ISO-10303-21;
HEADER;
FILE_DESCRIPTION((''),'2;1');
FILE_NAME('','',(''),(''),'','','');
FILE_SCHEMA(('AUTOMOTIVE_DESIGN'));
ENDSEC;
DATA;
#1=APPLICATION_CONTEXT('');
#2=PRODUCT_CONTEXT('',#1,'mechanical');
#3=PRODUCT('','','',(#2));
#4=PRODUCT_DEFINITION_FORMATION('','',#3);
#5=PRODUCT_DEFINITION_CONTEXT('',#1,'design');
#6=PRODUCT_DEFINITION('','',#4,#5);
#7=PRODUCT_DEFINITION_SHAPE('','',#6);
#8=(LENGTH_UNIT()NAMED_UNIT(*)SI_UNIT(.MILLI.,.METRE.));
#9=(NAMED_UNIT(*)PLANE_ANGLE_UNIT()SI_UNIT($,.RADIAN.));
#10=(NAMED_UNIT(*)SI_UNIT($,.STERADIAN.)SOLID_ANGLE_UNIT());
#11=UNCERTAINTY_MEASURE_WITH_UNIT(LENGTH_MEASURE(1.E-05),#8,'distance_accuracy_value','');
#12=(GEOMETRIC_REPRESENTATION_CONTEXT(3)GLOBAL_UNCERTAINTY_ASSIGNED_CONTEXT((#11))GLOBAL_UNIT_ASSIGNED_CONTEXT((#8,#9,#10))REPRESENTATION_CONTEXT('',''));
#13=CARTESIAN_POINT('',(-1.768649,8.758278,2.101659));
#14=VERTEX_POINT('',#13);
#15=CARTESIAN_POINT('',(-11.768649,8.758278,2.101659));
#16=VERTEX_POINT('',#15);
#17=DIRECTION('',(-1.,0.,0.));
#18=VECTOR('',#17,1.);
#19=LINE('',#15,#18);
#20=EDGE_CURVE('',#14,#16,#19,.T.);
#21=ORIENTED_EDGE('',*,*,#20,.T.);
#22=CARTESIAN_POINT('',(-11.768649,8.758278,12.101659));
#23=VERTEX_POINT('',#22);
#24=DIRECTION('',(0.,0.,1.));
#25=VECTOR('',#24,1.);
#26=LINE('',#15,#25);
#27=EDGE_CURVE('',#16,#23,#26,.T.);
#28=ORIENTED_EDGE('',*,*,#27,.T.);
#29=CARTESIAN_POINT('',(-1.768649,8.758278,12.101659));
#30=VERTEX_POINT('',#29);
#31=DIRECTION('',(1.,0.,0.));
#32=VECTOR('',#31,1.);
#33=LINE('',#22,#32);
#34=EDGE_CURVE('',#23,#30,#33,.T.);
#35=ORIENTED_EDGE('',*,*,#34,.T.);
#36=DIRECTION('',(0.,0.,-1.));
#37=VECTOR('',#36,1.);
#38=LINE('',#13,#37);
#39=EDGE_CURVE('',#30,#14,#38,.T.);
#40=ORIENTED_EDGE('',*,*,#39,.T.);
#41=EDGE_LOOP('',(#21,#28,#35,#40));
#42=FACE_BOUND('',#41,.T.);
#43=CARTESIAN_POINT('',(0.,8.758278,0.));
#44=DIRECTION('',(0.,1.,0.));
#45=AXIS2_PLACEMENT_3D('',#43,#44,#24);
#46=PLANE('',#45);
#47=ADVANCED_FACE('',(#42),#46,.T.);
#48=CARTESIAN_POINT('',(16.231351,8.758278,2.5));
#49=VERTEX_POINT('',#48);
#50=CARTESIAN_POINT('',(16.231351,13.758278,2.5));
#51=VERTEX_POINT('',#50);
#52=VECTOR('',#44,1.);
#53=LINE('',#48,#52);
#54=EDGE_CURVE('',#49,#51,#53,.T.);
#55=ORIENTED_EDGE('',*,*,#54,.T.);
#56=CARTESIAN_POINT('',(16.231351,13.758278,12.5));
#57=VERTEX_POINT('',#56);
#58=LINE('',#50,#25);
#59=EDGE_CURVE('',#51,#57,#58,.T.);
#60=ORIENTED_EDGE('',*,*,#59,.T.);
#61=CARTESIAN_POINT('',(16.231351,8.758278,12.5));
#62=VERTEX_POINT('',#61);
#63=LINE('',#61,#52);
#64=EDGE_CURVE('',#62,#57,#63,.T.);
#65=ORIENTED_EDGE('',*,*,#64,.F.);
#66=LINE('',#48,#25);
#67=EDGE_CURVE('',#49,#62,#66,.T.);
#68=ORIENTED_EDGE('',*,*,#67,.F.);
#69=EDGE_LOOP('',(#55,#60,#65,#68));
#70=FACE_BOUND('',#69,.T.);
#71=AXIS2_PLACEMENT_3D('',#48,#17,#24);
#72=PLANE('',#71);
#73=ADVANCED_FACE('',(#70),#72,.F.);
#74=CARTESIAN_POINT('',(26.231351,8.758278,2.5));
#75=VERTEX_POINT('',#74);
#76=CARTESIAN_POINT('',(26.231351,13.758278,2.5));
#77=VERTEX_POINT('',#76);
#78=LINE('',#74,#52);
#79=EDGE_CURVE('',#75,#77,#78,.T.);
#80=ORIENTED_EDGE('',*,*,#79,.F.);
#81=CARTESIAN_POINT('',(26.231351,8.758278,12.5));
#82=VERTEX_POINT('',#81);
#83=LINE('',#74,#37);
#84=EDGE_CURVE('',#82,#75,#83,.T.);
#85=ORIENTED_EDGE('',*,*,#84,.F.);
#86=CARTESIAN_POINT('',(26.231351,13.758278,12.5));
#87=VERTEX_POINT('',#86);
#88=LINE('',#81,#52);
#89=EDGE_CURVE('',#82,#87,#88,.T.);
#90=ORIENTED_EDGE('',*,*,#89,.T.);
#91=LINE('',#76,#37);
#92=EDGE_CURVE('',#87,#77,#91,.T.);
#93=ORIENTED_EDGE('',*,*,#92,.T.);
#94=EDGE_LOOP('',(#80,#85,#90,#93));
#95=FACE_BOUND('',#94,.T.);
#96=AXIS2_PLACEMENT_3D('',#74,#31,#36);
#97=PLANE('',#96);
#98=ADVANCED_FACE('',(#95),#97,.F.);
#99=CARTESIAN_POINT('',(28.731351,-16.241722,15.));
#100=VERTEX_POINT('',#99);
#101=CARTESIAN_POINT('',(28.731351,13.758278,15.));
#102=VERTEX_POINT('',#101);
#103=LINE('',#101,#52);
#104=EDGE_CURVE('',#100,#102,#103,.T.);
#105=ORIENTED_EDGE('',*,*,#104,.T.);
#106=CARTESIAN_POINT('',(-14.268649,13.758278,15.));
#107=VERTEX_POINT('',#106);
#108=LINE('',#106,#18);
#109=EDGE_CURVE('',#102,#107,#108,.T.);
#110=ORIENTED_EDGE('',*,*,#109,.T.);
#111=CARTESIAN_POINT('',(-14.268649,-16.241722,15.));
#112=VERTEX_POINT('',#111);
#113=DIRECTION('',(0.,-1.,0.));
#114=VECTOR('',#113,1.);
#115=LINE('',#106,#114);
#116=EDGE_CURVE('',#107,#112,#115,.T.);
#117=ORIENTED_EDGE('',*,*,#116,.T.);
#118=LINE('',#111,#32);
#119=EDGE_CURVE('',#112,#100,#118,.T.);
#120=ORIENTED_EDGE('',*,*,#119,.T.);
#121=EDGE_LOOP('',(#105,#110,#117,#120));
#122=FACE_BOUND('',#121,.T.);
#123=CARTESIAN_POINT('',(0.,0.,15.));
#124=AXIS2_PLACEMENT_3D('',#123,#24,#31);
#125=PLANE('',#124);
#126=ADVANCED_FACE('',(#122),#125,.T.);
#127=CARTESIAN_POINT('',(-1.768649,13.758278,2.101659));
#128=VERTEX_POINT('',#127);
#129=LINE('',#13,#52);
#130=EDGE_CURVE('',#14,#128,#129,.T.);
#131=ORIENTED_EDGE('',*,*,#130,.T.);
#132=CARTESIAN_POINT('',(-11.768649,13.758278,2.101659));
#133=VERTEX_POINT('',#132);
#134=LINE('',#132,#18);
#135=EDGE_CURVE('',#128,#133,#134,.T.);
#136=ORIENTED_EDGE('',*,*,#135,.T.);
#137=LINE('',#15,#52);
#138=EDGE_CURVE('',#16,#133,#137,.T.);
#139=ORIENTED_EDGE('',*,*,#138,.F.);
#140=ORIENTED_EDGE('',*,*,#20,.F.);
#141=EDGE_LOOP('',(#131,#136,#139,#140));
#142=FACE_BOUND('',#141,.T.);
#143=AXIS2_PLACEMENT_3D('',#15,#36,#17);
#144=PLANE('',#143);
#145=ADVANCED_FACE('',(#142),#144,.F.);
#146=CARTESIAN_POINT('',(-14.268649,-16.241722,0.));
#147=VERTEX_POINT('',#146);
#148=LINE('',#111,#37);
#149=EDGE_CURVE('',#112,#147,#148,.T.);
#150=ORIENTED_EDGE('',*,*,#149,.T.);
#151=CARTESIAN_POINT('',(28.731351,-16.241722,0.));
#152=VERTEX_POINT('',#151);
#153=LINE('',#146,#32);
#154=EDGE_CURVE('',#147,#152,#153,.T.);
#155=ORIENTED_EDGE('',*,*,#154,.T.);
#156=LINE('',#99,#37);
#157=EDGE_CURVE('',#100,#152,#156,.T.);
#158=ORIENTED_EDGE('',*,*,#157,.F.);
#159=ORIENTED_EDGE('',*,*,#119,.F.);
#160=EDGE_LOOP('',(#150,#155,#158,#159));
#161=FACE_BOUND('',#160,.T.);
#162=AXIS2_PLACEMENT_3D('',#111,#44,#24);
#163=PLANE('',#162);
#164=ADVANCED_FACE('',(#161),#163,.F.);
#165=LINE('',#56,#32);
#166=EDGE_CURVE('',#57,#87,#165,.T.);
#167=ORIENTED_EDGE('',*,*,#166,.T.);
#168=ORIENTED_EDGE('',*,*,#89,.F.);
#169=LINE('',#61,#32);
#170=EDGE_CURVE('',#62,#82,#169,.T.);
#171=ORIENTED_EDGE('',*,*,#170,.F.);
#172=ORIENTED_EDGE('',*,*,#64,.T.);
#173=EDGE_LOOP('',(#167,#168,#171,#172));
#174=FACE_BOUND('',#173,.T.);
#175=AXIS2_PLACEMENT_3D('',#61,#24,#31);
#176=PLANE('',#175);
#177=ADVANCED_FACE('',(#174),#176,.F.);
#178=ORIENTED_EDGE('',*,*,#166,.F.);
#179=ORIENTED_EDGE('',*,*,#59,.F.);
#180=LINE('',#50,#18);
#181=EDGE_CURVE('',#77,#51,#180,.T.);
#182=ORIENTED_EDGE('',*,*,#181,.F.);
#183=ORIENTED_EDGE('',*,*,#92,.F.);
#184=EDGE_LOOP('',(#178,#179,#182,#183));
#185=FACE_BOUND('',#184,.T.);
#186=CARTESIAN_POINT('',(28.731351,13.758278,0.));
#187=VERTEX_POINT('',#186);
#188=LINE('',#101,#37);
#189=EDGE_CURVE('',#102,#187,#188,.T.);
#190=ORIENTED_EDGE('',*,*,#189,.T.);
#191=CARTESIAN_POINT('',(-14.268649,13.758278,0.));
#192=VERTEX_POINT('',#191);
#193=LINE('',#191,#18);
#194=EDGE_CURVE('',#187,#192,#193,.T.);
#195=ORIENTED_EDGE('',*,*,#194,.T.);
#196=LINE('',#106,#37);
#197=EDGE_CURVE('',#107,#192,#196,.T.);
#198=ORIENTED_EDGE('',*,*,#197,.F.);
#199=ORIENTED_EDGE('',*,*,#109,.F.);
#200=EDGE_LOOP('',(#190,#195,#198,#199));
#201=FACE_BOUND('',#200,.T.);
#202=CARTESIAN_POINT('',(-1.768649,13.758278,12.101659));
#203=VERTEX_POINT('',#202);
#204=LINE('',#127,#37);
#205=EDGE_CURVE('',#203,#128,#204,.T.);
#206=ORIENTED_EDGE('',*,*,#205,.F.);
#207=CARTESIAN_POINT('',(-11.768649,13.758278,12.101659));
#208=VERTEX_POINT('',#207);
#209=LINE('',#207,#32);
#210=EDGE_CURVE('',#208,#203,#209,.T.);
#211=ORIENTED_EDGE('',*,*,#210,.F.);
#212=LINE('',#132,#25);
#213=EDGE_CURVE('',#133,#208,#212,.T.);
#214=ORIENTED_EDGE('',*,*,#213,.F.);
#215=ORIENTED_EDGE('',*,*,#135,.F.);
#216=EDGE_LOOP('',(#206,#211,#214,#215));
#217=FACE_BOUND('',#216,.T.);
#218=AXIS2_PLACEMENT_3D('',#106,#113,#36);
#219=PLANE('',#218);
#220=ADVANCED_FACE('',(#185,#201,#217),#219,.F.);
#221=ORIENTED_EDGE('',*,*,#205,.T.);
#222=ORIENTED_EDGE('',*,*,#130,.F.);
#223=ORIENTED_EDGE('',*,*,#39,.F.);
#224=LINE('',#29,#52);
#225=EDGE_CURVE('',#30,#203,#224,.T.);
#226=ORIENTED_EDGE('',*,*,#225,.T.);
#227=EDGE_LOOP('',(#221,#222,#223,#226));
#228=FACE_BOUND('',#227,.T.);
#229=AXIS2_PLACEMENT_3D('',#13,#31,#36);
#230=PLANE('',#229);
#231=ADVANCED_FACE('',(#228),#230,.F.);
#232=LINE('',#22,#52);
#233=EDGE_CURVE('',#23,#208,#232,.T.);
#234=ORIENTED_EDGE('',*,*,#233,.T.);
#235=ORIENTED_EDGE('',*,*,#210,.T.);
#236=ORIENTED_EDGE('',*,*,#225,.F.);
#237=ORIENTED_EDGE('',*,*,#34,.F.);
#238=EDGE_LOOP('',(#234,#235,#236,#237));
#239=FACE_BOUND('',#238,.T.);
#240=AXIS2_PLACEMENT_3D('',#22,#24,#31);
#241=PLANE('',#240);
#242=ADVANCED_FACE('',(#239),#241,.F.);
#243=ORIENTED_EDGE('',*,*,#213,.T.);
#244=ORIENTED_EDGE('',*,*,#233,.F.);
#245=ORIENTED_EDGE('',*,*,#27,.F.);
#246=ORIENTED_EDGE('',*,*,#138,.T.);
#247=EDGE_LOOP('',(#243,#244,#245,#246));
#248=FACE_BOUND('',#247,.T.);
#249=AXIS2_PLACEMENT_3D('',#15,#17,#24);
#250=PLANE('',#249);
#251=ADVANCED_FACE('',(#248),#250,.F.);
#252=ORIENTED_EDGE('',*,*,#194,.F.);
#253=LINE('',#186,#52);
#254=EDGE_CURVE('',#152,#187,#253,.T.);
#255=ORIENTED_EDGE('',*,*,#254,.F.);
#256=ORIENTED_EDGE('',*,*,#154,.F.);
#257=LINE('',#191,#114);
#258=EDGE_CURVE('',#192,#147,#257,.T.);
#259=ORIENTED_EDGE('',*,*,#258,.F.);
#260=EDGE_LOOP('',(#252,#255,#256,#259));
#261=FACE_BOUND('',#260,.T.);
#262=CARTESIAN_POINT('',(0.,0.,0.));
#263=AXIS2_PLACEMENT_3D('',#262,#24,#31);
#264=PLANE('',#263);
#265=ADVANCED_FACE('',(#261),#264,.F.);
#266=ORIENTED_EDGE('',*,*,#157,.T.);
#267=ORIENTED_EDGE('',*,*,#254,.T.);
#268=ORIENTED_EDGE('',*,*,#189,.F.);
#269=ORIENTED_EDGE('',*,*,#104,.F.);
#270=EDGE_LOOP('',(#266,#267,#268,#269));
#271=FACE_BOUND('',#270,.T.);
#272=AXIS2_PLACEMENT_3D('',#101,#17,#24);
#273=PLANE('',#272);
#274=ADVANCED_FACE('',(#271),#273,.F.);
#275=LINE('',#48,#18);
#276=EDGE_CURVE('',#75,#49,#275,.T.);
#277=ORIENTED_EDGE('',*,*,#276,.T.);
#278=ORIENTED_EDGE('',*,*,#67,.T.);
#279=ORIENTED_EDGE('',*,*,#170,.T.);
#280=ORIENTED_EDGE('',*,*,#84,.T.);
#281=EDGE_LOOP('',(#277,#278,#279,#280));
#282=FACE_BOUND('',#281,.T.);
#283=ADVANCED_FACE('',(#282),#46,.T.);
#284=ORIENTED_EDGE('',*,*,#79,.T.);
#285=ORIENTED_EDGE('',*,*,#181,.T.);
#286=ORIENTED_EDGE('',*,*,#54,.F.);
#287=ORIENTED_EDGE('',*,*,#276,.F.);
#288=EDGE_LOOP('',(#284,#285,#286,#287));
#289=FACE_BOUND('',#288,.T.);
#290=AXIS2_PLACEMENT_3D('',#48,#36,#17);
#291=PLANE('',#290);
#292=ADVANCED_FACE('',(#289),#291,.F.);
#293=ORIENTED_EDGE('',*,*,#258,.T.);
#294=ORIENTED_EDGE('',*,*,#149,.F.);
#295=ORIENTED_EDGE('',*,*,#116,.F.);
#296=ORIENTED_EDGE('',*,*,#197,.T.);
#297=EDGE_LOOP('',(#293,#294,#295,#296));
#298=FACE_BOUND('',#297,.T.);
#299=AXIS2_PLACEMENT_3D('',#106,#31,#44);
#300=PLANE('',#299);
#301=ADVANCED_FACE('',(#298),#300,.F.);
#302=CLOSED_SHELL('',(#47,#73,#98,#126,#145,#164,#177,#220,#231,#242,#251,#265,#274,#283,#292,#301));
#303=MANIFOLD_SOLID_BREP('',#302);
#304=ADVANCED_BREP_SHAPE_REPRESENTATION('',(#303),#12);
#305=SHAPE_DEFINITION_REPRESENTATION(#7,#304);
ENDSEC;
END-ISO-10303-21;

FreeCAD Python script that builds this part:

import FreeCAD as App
import Part
import Sketcher
from FreeCAD import Vector
Q = App.Units.Quantity


def add_polygon(sketch, points):
    """Adds a closed chain of lines whose ends are joined by coincident constraints."""
    first, n = sketch.GeometryCount, len(points)
    for a, b in zip(points, points[1:] + points[:1]):
        sketch.addGeometry(Part.LineSegment(App.Vector(*a, 0), App.Vector(*b, 0)), False)
    for i in range(n):
        sketch.addConstraint(Sketcher.Constraint("Coincident", first + i, 2, first + (i + 1) % n, 1))

doc = App.newDocument("Part")
params = doc.addObject("Spreadsheet::Sheet", "Params")
for row, (alias, value) in enumerate([
    ("sketch1_width", "43 mm"),
    ("sketch1_height", "30 mm"),
    ("pad1_length", "15 mm"),
    ("sketch2_width", "10 mm"),
    ("pocket1_length", "5 mm"),
], start=1):
    params.set(f"A{row}", alias)
    params.set(f"B{row}", "=" + value)
    params.setAlias(f"B{row}", alias)

body = doc.addObject("PartDesign::Body", "Body")

sketch1 = body.newObject("Sketcher::SketchObject", "Sketch")
sketch1.AttachmentSupport = (doc.getObject("XY_Plane"), [""])
sketch1.MapMode = "FlatFace"
add_polygon(sketch1, [(-14, 14), (-14, -16), (29, -16), (29, 14)])
sketch1.addConstraint([
    Sketcher.Constraint("Vertical", 0),
    Sketcher.Constraint("Horizontal", 1),
    Sketcher.Constraint("Vertical", 2),
    Sketcher.Constraint("Horizontal", 3),
    Sketcher.Constraint("DistanceX", 1, 1, 1, 2, Q("43 mm")),
    Sketcher.Constraint("DistanceY", 0, 2, 0, 1, Q("30 mm")),
    Sketcher.Constraint("DistanceX", 0, 2, -1, 1, Q("14.268649 mm")),
    Sketcher.Constraint("DistanceY", 0, 2, -1, 1, Q("16.241722 mm")),
])
sketch1.setExpression("Constraints[8]", "Params.sketch1_width")
sketch1.setExpression("Constraints[9]", "Params.sketch1_height")
pad1 = body.newObject("PartDesign::Pad", "Pad")
pad1.Profile = sketch1
pad1.setExpression("Length", "Params.pad1_length")

sketch2 = body.newObject("Sketcher::SketchObject", "Sketch001")
sketch2.AttachmentSupport = (doc.getObject("XZ_Plane"), [""])
sketch2.MapMode = "FlatFace"
sketch2.AttachmentOffset = App.Placement(Vector(0, 0, -13.758278), App.Rotation())
add_polygon(sketch2, [(-12, 2), (-12, 12), (-2, 12), (-2, 2)])
add_polygon(sketch2, [(16, 2), (16, 12), (26, 12), (26, 2)])
sketch2.addConstraint([
    Sketcher.Constraint("Vertical", 0),
    Sketcher.Constraint("Horizontal", 1),
    Sketcher.Constraint("Vertical", 2),
    Sketcher.Constraint("Horizontal", 3),
    Sketcher.Constraint("Vertical", 4),
    Sketcher.Constraint("Horizontal", 5),
    Sketcher.Constraint("Vertical", 6),
    Sketcher.Constraint("Horizontal", 7),
    Sketcher.Constraint("Equal", 3, 5),
    Sketcher.Constraint("Equal", 7, 0),
    Sketcher.Constraint("Equal", 2, 4),
    Sketcher.Constraint("DistanceX", 1, 1, 1, 2, Q("10 mm")),
    Sketcher.Constraint("DistanceX", 1, 2, 4, 2, Q("18 mm")),
    Sketcher.Constraint("DistanceY", -1, 1, 4, 2, Q("12.5 mm")),
    Sketcher.Constraint("DistanceX", 0, 2, -1, 1, Q("11.768649 mm")),
    Sketcher.Constraint("DistanceY", -1, 1, 0, 2, Q("12.101659 mm")),
])
sketch2.setExpression("Constraints[19]", "Params.sketch2_width")
pocket1 = body.newObject("PartDesign::Pocket", "Pocket")
pocket1.Profile = sketch2
pocket1.setExpression("Length", "Params.pocket1_length")
pocket1.Reversed = True

doc.recompute()
